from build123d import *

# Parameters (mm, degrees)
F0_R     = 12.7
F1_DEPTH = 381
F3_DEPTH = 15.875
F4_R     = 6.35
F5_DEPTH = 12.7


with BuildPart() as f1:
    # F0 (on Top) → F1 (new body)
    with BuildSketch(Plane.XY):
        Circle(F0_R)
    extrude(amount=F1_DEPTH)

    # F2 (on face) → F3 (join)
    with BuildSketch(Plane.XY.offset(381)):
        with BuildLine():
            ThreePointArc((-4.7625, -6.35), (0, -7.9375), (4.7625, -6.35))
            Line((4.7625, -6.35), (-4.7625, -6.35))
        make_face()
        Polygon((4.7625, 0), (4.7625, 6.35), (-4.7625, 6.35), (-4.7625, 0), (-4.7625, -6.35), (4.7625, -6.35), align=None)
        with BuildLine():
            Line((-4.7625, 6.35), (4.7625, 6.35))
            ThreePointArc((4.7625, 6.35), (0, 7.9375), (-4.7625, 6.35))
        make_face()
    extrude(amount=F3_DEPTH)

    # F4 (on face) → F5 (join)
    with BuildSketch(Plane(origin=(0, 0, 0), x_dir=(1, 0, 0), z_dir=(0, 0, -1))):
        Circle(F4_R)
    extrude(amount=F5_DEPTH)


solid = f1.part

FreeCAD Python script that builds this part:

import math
import FreeCAD as App
import Part
import Sketcher

V = App.Vector
Q = App.Units.Quantity

doc = App.newDocument("Part")
body = doc.addObject("PartDesign::Body", "Body")

# Sketch on XY plane
sketch1 = body.newObject("Sketcher::SketchObject", "Sketch")
sketch1.AttachmentSupport = (doc.getObject("XY_Plane"), [""])
sketch1.MapMode = "FlatFace"
sketch1.addGeometry(Part.Circle(V(0, 0, 0), V(0, 0, 1), 12.7), False)
sketch1.addConstraint([
    Sketcher.Constraint("Coincident", 0, 3, -1, 1),
    Sketcher.Constraint("Diameter", 0, Q("1 in")),
])
pad1 = body.newObject("PartDesign::Pad", "Pad")
pad1.Profile = sketch1
pad1.Length = Q("15 in")

# Sketch on XY plane
sketch2 = body.newObject("Sketcher::SketchObject", "Sketch001")
sketch2.AttachmentSupport = (doc.getObject("XY_Plane"), [""])
sketch2.MapMode = "FlatFace"
sketch2.AttachmentOffset = App.Placement(V(0, 0, 15 * 25.4), App.Rotation())
sketch2.addGeometry([
    Part.ArcOfCircle(Part.Circle(V(0, 0, 0), V(0, 0, 1), 7.9375), math.radians(-126.869898), math.radians(-53.130102)),
    Part.LineSegment(V(4.7625, -6.35, 0), V(4.7625, 6.35, 0)),
    Part.ArcOfCircle(Part.Circle(V(0, 0, 0), V(0, 0, 1), 7.9375), math.radians(53.130102), math.radians(126.869898)),
    Part.LineSegment(V(-4.7625, 6.35, 0), V(-4.7625, -6.35, 0)),
], False)
sketch2.addConstraint([
    Sketcher.Constraint("Coincident", 0, 2, 1, 1),
    Sketcher.Constraint("Coincident", 1, 2, 2, 1),
    Sketcher.Constraint("Coincident", 2, 2, 3, 1),
    Sketcher.Constraint("Coincident", 3, 2, 0, 1),
    Sketcher.Constraint("Vertical", 1),
    Sketcher.Constraint("Vertical", 3),
    Sketcher.Constraint("Coincident", 0, 3, -1, 1),
    Sketcher.Constraint("Coincident", 2, 3, -1, 1),
    Sketcher.Constraint("Equal", 0, 2),
    Sketcher.Constraint("Horizontal", 1, 2, 2, 2),
    Sketcher.Constraint("DistanceY", 1, 1, 1, 2, Q("0.5 in")),
    Sketcher.Constraint("Radius", 0, Q("0.3125 in")),
])
pad2 = body.newObject("PartDesign::Pad", "Pad001")
pad2.Profile = sketch2
pad2.Length = Q("0.625 in")

# Sketch on XY plane
sketch3 = body.newObject("Sketcher::SketchObject", "Sketch002")
sketch3.AttachmentSupport = (doc.getObject("XY_Plane"), [""])
sketch3.MapMode = "FlatFace"
sketch3.addGeometry(Part.Circle(V(0, 0, 0), V(0, 0, 1), 6.35), False)
sketch3.addConstraint([
    Sketcher.Constraint("Coincident", 0, 3, -1, 1),
    Sketcher.Constraint("Diameter", 0, Q("0.5 in")),
])
pad3 = body.newObject("PartDesign::Pad", "Pad002")
pad3.Profile = sketch3
pad3.Length = Q("0.5 in")
pad3.Reversed = True

doc.recompute()
